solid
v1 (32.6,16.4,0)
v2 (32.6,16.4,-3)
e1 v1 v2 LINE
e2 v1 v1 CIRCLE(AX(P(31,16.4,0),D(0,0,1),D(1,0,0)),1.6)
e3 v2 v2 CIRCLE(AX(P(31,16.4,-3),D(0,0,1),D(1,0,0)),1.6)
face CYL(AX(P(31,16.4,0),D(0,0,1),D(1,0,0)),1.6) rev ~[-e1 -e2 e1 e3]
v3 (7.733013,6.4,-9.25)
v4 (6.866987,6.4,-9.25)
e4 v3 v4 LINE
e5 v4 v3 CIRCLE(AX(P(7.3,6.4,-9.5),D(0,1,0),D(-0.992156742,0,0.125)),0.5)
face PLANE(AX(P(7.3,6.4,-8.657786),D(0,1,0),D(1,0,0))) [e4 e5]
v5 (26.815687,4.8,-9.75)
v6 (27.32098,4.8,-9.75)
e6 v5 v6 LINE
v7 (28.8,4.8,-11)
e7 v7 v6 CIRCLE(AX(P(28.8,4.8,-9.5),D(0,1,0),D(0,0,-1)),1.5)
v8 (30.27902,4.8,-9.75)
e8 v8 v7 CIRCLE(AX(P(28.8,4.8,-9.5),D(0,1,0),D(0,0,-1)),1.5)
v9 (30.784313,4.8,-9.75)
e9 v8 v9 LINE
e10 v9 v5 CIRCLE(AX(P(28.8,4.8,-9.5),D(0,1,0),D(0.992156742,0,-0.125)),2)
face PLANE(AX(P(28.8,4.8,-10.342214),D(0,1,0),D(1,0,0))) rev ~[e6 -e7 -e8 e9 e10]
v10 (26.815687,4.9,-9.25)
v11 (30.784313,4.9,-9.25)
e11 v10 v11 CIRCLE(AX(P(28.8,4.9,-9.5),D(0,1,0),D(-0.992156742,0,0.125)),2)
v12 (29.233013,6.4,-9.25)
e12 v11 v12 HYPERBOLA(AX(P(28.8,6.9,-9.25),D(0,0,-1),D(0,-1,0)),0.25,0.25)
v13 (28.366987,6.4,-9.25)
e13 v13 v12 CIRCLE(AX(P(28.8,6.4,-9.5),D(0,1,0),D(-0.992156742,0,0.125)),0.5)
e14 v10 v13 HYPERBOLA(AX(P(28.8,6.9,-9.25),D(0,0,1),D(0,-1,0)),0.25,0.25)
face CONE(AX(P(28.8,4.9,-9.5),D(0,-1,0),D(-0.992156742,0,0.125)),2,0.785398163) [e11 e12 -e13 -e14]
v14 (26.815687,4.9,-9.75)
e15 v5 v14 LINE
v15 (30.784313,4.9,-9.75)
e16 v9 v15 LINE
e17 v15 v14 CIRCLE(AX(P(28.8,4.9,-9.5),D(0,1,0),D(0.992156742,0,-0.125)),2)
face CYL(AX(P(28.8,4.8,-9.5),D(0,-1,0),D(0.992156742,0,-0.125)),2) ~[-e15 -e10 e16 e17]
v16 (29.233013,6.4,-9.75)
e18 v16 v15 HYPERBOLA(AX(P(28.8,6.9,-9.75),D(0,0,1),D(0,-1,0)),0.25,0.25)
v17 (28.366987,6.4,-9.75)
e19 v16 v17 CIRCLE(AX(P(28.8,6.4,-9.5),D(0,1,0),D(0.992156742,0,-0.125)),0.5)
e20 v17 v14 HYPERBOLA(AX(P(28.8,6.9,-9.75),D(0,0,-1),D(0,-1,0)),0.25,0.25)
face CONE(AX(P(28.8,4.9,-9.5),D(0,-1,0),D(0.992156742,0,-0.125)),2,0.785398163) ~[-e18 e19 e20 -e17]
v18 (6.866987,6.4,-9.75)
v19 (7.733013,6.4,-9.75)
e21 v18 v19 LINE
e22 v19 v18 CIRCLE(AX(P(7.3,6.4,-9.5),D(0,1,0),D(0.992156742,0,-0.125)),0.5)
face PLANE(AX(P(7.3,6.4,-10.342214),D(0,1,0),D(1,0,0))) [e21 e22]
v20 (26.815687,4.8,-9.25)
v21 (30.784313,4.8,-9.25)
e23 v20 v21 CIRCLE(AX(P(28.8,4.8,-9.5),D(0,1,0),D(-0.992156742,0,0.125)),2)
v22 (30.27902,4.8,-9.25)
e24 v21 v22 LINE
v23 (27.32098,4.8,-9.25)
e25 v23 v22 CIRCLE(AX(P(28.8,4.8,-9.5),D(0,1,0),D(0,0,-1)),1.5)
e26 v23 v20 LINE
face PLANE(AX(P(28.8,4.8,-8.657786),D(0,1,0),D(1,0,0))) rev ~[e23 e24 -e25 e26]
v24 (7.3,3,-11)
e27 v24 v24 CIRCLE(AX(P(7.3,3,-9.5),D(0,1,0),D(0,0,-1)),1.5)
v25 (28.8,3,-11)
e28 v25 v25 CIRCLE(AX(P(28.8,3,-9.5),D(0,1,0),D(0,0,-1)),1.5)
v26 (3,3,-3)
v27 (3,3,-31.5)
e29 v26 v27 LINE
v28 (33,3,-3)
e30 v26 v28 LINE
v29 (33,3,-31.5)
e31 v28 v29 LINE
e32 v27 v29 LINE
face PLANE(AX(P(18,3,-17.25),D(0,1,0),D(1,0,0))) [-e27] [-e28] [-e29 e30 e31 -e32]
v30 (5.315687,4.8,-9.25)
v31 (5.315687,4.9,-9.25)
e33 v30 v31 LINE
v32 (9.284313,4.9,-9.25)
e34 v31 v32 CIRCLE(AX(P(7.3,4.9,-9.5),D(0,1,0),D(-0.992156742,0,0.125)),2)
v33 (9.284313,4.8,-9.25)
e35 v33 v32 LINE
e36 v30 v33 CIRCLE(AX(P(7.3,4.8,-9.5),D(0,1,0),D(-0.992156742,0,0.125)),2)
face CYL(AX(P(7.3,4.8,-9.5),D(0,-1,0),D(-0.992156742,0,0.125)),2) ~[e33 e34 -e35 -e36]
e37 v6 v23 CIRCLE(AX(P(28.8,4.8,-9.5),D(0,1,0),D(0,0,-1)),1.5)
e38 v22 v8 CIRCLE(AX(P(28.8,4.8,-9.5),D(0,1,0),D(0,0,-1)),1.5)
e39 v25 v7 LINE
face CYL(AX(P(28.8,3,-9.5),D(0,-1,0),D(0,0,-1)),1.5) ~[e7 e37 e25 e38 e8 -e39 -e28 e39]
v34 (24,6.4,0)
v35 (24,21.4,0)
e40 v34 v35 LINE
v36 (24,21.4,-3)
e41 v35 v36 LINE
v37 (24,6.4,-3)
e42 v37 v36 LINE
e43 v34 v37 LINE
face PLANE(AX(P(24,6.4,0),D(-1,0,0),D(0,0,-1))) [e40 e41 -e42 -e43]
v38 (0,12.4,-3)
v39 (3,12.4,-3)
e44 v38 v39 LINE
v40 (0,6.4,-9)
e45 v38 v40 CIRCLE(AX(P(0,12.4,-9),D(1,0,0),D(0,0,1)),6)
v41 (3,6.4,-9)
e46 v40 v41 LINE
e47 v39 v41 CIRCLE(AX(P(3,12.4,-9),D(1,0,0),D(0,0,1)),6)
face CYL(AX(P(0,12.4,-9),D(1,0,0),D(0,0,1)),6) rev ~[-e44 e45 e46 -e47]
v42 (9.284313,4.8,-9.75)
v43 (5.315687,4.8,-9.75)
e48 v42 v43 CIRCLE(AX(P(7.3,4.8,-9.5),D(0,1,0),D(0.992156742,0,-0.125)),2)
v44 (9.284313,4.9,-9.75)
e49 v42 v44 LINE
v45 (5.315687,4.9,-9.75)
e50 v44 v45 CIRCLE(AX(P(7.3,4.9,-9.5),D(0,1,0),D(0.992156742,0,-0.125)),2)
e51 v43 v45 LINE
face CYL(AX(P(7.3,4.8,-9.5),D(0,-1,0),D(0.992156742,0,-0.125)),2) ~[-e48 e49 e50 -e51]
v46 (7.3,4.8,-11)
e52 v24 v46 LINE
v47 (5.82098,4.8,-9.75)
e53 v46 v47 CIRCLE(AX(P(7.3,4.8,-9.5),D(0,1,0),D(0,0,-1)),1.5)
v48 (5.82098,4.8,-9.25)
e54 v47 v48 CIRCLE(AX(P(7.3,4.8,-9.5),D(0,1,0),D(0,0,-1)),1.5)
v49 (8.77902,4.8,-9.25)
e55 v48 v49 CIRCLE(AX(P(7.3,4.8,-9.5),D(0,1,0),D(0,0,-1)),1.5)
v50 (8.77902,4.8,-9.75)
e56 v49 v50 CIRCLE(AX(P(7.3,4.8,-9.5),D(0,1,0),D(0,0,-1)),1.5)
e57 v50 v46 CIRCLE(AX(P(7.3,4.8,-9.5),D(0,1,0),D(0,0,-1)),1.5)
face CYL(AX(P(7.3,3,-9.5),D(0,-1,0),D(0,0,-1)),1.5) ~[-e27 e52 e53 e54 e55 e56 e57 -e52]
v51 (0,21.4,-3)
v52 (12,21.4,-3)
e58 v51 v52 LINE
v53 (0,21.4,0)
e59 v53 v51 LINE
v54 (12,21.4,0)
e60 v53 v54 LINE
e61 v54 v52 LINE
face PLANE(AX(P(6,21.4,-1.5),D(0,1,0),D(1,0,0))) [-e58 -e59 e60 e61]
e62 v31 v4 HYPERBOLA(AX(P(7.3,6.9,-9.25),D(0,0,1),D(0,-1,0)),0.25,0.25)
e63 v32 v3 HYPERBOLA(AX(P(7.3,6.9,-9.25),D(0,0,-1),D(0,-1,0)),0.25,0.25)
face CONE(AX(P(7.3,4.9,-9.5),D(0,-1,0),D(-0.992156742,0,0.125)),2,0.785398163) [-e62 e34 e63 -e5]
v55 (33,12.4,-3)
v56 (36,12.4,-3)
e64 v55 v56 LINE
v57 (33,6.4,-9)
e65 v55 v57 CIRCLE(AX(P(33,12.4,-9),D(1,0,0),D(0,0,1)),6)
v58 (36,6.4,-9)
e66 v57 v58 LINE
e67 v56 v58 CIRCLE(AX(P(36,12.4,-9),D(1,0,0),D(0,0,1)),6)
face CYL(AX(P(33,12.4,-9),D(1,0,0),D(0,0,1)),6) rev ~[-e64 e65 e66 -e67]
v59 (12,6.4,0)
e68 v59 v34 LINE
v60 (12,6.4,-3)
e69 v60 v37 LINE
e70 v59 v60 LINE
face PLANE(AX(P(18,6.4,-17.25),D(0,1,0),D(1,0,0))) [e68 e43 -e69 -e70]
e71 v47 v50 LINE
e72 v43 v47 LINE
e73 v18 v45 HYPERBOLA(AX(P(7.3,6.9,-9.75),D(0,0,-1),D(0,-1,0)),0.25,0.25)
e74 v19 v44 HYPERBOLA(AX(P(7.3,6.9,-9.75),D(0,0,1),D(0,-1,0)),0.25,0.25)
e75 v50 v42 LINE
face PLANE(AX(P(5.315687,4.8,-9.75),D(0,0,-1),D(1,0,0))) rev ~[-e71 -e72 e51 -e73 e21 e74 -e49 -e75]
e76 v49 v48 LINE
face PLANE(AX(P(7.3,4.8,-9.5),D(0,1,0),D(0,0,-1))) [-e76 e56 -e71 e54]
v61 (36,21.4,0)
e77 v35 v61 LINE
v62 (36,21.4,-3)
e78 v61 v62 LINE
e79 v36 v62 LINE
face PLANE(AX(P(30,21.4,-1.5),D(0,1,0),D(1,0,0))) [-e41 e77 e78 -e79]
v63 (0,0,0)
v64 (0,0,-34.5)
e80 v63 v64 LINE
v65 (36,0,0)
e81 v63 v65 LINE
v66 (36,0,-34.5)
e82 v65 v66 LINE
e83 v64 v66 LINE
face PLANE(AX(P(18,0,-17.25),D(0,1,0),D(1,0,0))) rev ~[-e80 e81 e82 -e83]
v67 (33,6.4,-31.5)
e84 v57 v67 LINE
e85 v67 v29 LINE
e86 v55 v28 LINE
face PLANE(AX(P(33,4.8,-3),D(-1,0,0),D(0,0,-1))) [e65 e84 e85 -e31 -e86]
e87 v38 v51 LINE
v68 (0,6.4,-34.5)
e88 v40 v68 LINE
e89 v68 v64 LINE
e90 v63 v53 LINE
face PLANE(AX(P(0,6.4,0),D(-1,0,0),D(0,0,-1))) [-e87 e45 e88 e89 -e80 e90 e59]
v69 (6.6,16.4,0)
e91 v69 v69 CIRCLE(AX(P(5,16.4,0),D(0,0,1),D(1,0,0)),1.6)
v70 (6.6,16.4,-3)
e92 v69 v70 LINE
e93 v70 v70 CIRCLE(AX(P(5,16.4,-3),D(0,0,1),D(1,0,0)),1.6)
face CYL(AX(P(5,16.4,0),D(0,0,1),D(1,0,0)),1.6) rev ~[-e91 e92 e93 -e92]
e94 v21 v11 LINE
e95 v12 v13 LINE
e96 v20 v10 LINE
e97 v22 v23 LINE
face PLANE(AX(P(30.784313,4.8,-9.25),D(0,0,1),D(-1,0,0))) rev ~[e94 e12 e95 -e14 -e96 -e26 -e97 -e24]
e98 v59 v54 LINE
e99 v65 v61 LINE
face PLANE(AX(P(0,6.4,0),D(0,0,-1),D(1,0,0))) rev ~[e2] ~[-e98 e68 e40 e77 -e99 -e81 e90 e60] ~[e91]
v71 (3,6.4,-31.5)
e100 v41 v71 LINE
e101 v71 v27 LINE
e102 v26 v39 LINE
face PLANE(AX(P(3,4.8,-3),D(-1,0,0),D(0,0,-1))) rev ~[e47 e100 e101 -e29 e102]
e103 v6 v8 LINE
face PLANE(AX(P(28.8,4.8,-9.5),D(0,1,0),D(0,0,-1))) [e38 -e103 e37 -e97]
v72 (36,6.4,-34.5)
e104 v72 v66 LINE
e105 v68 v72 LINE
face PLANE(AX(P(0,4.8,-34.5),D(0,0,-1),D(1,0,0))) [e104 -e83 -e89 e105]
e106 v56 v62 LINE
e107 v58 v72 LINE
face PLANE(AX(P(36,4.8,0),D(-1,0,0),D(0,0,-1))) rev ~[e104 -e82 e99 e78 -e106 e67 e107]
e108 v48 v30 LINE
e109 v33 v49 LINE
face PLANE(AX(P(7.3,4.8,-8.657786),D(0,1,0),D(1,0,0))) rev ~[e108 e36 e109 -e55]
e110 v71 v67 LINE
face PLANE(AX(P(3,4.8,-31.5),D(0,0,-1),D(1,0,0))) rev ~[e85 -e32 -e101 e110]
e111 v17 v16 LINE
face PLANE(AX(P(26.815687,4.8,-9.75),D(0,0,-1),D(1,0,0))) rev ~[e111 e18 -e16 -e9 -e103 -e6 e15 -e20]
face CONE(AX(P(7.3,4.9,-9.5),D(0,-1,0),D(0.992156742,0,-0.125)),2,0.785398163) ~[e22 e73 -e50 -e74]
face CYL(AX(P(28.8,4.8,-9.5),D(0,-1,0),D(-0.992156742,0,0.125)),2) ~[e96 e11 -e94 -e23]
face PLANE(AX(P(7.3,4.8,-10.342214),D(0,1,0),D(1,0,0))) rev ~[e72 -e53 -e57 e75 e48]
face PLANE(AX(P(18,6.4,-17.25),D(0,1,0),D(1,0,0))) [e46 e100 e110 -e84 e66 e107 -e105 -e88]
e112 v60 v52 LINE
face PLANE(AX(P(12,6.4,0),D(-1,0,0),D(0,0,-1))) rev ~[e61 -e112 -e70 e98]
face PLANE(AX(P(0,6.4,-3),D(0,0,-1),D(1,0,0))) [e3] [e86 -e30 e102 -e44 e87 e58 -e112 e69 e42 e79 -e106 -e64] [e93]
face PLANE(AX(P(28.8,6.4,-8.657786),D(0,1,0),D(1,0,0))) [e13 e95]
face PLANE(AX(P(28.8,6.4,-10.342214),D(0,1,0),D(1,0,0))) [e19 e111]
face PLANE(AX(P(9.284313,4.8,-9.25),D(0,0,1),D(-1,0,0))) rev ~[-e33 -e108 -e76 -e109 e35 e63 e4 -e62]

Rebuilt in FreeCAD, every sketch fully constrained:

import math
import FreeCAD as App
import Part
import Sketcher

V = App.Vector
Q = App.Units.Quantity


def edges_at(feature, points):
    """Names of the edges that pass closest to the given points."""
    edges = feature.Shape.Edges
    near = lambda p: min(range(len(edges)), key=lambda i: edges[i].distToShape(Part.Vertex(*p))[0])
    return sorted({f"Edge{near(p) + 1}" for p in points})

doc = App.newDocument("Part")
body = doc.addObject("PartDesign::Body", "Body")

# Sketch on XZ plane
sketch1 = body.newObject("Sketcher::SketchObject", "Sketch")
sketch1.AttachmentSupport = (doc.getObject("XZ_Plane"), [""])
sketch1.MapMode = "FlatFace"
sketch1.addGeometry([
    Part.LineSegment(V(0, -34, 0), V(0, 0, 0)),
    Part.LineSegment(V(0, 0, 0), V(36, 0, 0)),
    Part.LineSegment(V(36, 0, 0), V(36, -34, 0)),
    Part.LineSegment(V(36, -34, 0), V(0, -34, 0)),
], False)
sketch1.addConstraint([
    Sketcher.Constraint("Coincident", 0, 2, 1, 1),
    Sketcher.Constraint("Coincident", 1, 2, 2, 1),
    Sketcher.Constraint("Coincident", 2, 2, 3, 1),
    Sketcher.Constraint("Coincident", 3, 2, 0, 1),
    Sketcher.Constraint("Vertical", 0),
    Sketcher.Constraint("Horizontal", 1),
    Sketcher.Constraint("Vertical", 2),
    Sketcher.Constraint("Horizontal", 3),
    Sketcher.Constraint("Coincident", 0, 2, -1, 1),
    Sketcher.Constraint("DistanceX", 1, 1, 1, 2, Q("36 mm")),
    Sketcher.Constraint("DistanceY", 0, 1, 0, 2, Q("34.5 mm")),
])
pad1 = body.newObject("PartDesign::Pad", "Pad")
pad1.Profile = sketch1
pad1.Length = 3
pad1.Reversed = True

# Sketch on XZ plane
sketch2 = body.newObject("Sketcher::SketchObject", "Sketch001")
sketch2.AttachmentSupport = (doc.getObject("XZ_Plane"), [""])
sketch2.MapMode = "FlatFace"
sketch2.AttachmentOffset = App.Placement(V(0, 0, -3), App.Rotation())
sketch2.addGeometry([
    Part.LineSegment(V(0, -34.5, 0), V(0, 0, 0)),  # 0
    Part.LineSegment(V(0, 0, 0), V(36, 0, 0)),  # 1
    Part.LineSegment(V(36, 0, 0), V(36, -34.5, 0)),  # 2
    Part.LineSegment(V(36, -34.5, 0), V(0, -34.5, 0)),  # 3
    Part.LineSegment(V(33, -3, 0), V(3, -3, 0)),  # 4
    Part.LineSegment(V(3, -3, 0), V(3, -31.5, 0)),  # 5
    Part.LineSegment(V(3, -31.5, 0), V(33, -31.5, 0)),  # 6
    Part.LineSegment(V(33, -31.5, 0), V(33, -3, 0)),  # 7
    Part.Circle(V(7.3, -9.5, 0), V(0, 0, 1), 1.5),  # 8
    Part.Circle(V(28.8, -9.5, 0), V(0, 0, 1), 1.5),  # 9
], False)
sketch2.addConstraint([
    Sketcher.Constraint("Coincident", 0, 2, 1, 1),
    Sketcher.Constraint("Coincident", 1, 2, 2, 1),
    Sketcher.Constraint("Coincident", 2, 2, 3, 1),
    Sketcher.Constraint("Coincident", 3, 2, 0, 1),
    Sketcher.Constraint("Coincident", 4, 2, 5, 1),
    Sketcher.Constraint("Coincident", 5, 2, 6, 1),
    Sketcher.Constraint("Coincident", 6, 2, 7, 1),
    Sketcher.Constraint("Coincident", 7, 2, 4, 1),
    Sketcher.Constraint("Vertical", 0),
    Sketcher.Constraint("Horizontal", 1),
    Sketcher.Constraint("Vertical", 2),
    Sketcher.Constraint("Horizontal", 3),
    Sketcher.Constraint("Horizontal", 4),
    Sketcher.Constraint("Vertical", 5),
    Sketcher.Constraint("Horizontal", 6),
    Sketcher.Constraint("Vertical", 7),
    Sketcher.Constraint("Coincident", 0, 2, -1, 1),
    Sketcher.Constraint("Equal", 8, 9),
    Sketcher.Constraint("Horizontal", 8, 3, 9, 3),
    Sketcher.Constraint("Diameter", 8, Q("3 mm")),
    Sketcher.Constraint("DistanceX", 1, 1, 1, 2, Q("36 mm")),
    Sketcher.Constraint("DistanceX", 4, 2, 4, 1, Q("30 mm")),
    Sketcher.Constraint("DistanceY", 0, 1, 0, 2, Q("34.5 mm")),
    Sketcher.Constraint("DistanceY", 5, 2, 5, 1, Q("28.5 mm")),
    Sketcher.Constraint("DistanceX", -1, 1, 4, 2, Q("3 mm")),
    Sketcher.Constraint("DistanceY", 4, 2, -1, 1, Q("3 mm")),
    Sketcher.Constraint("DistanceY", 2, 2, 9, 3, Q("25 mm")),
    Sketcher.Constraint("DistanceX", -1, 1, 8, 3, Q("7.3 mm")),
    Sketcher.Constraint("DistanceX", -1, 1, 9, 3, Q("28.8 mm")),
])
pad2 = body.newObject("PartDesign::Pad", "Pad001")
pad2.Profile = sketch2
pad2.Length = 1.8
pad2.Reversed = True

# Sketch on XZ plane
sketch3 = body.newObject("Sketcher::SketchObject", "Sketch002")
sketch3.AttachmentSupport = (doc.getObject("XZ_Plane"), [""])
sketch3.MapMode = "FlatFace"
sketch3.AttachmentOffset = App.Placement(V(0, 0, -4.8), App.Rotation())
sketch3.addGeometry([
    Part.LineSegment(V(0, -34.5, 0), V(0, 0, 0)),  # 0
    Part.LineSegment(V(0, 0, 0), V(36, 0, 0)),  # 1
    Part.LineSegment(V(36, 0, 0), V(36, -34.5, 0)),  # 2
    Part.LineSegment(V(36, -34.5, 0), V(0, -34.5, 0)),  # 3
    Part.LineSegment(V(33, -3, 0), V(3, -3, 0)),  # 4
    Part.LineSegment(V(3, -3, 0), V(3, -31.5, 0)),  # 5
    Part.LineSegment(V(3, -31.5, 0), V(33, -31.5, 0)),  # 6
    Part.LineSegment(V(33, -31.5, 0), V(33, -3, 0)),  # 7
    Part.ArcOfCircle(Part.Circle(V(28.8, -9.5, 0), V(0, 0, 1), 2), math.radians(-173), math.radians(-7)),  # 8
    Part.LineSegment(V(26.8, -9.8, 0), V(30.8, -9.8, 0)),  # 9
    Part.ArcOfCircle(Part.Circle(V(28.8, -9.5, 0), V(0, 0, 1), 2), math.radians(7), math.radians(173)),  # 10
    Part.LineSegment(V(30.8, -9.2, 0), V(26.8, -9.2, 0)),  # 11
    Part.ArcOfCircle(Part.Circle(V(7.3, -9.5, 0), V(0, 0, 1), 2), math.radians(-173), math.radians(-7)),  # 12
    Part.LineSegment(V(5.3, -9.8, 0), V(9.3, -9.8, 0)),  # 13
    Part.ArcOfCircle(Part.Circle(V(7.3, -9.5, 0), V(0, 0, 1), 2), math.radians(7), math.radians(173)),  # 14
    Part.LineSegment(V(9.3, -9.2, 0), V(5.3, -9.2, 0)),  # 15
], False)
sketch3.addConstraint([
    Sketcher.Constraint("Coincident", 0, 2, 1, 1),
    Sketcher.Constraint("Coincident", 1, 2, 2, 1),
    Sketcher.Constraint("Coincident", 2, 2, 3, 1),
    Sketcher.Constraint("Coincident", 3, 2, 0, 1),
    Sketcher.Constraint("Coincident", 4, 2, 5, 1),
    Sketcher.Constraint("Coincident", 5, 2, 6, 1),
    Sketcher.Constraint("Coincident", 6, 2, 7, 1),
    Sketcher.Constraint("Coincident", 7, 2, 4, 1),
    Sketcher.Constraint("Coincident", 8, 1, 9, 1),
    Sketcher.Constraint("Coincident", 9, 2, 8, 2),
    Sketcher.Constraint("Coincident", 10, 1, 11, 1),
    Sketcher.Constraint("Coincident", 11, 2, 10, 2),
    Sketcher.Constraint("Coincident", 12, 1, 13, 1),
    Sketcher.Constraint("Coincident", 13, 2, 12, 2),
    Sketcher.Constraint("Coincident", 14, 1, 15, 1),
    Sketcher.Constraint("Coincident", 15, 2, 14, 2),
    Sketcher.Constraint("Vertical", 0),
    Sketcher.Constraint("Horizontal", 1),
    Sketcher.Constraint("Vertical", 2),
    Sketcher.Constraint("Horizontal", 3),
    Sketcher.Constraint("Horizontal", 4),
    Sketcher.Constraint("Vertical", 5),
    Sketcher.Constraint("Horizontal", 6),
    Sketcher.Constraint("Vertical", 7),
    Sketcher.Constraint("Horizontal", 9),
    Sketcher.Constraint("Horizontal", 11),
    Sketcher.Constraint("Horizontal", 13),
    Sketcher.Constraint("Horizontal", 15),
    Sketcher.Constraint("Coincident", 0, 2, -1, 1),
    Sketcher.Constraint("Coincident", 10, 3, 8, 3),
    Sketcher.Constraint("Coincident", 14, 3, 12, 3),
    Sketcher.Constraint("Equal", 8, 10),
    Sketcher.Constraint("Equal", 10, 12),
    Sketcher.Constraint("Equal", 12, 14),
    Sketcher.Constraint("Horizontal", 10, 3, 12, 3),
    Sketcher.Constraint("Horizontal", 9, 2, 12, 1),
    Sketcher.Constraint("Horizontal", 11, 2, 14, 1),
    Sketcher.Constraint("Vertical", 9, 2, 10, 1),
    Sketcher.Constraint("Radius", 8, Q("2 mm")),
    Sketcher.Constraint("DistanceX", 1, 1, 1, 2, Q("36 mm")),
    Sketcher.Constraint("DistanceX", 4, 2, 4, 1, Q("30 mm")),
    Sketcher.Constraint("DistanceY", 0, 1, 0, 2, Q("34.5 mm")),
    Sketcher.Constraint("DistanceY", 5, 2, 5, 1, Q("28.5 mm")),
    Sketcher.Constraint("DistanceX", -1, 1, 4, 2, Q("3 mm")),
    Sketcher.Constraint("DistanceY", 4, 2, -1, 1, Q("3 mm")),
    Sketcher.Constraint("DistanceY", 2, 2, 8, 3, Q("25 mm")),
    Sketcher.Constraint("DistanceX", -1, 1, 8, 3, Q("28.8 mm")),
    Sketcher.Constraint("DistanceX", -1, 1, 12, 3, Q("7.3 mm")),
    Sketcher.Constraint("DistanceY", 9, 2, 10, 1, Q("0.5 mm")),
])
pad3 = body.newObject("PartDesign::Pad", "Pad002")
pad3.Profile = sketch3
pad3.Length = 1.6
pad3.Reversed = True
doc.recompute()

chamfer = body.newObject("PartDesign::Chamfer", "Chamfer")
chamfer.Base = (pad3, edges_at(pad3, [
    (7.3, 6.4, -11.5),
    (7.3, 6.4, -7.5),
    (28.8, 6.4, -11.5),
    (28.8, 6.4, -7.5),
]))
chamfer.Size = 1.5

# Sketch on XZ plane
sketch4 = body.newObject("Sketcher::SketchObject", "Sketch003")
sketch4.AttachmentSupport = (doc.getObject("XZ_Plane"), [""])
sketch4.MapMode = "FlatFace"
sketch4.AttachmentOffset = App.Placement(V(0, 0, -6.4), App.Rotation())
sketch4.addGeometry([
    Part.LineSegment(V(0, -3, 0), V(0, 0, 0)),  # 0
    Part.LineSegment(V(0, 0, 0), V(12, 0, 0)),  # 1
    Part.LineSegment(V(12, 0, 0), V(12, -3, 0)),  # 2
    Part.LineSegment(V(12, -3, 0), V(0, -3, 0)),  # 3
    Part.LineSegment(V(24, -3, 0), V(24, 0, 0)),  # 4
    Part.LineSegment(V(24, 0, 0), V(36, 0, 0)),  # 5
    Part.LineSegment(V(36, 0, 0), V(36, -3, 0)),  # 6
    Part.LineSegment(V(36, -3, 0), V(24, -3, 0)),  # 7
], False)
sketch4.addConstraint([
    Sketcher.Constraint("Coincident", 0, 2, 1, 1),
    Sketcher.Constraint("Coincident", 1, 2, 2, 1),
    Sketcher.Constraint("Coincident", 2, 2, 3, 1),
    Sketcher.Constraint("Coincident", 3, 2, 0, 1),
    Sketcher.Constraint("Coincident", 4, 2, 5, 1),
    Sketcher.Constraint("Coincident", 5, 2, 6, 1),
    Sketcher.Constraint("Coincident", 6, 2, 7, 1),
    Sketcher.Constraint("Coincident", 7, 2, 4, 1),
    Sketcher.Constraint("Vertical", 0),
    Sketcher.Constraint("Horizontal", 1),
    Sketcher.Constraint("Vertical", 2),
    Sketcher.Constraint("Horizontal", 3),
    Sketcher.Constraint("Vertical", 4),
    Sketcher.Constraint("Horizontal", 5),
    Sketcher.Constraint("Vertical", 6),
    Sketcher.Constraint("Horizontal", 7),
    Sketcher.Constraint("Coincident", 0, 2, -1, 1),
    Sketcher.Constraint("PointOnObject", 4, 2, -1),
    Sketcher.Constraint("Horizontal", 3, 2, 6, 2),
    Sketcher.Constraint("Equal", 3, 5),
    Sketcher.Constraint("DistanceX", 1, 1, 1, 2, Q("12 mm")),
    Sketcher.Constraint("DistanceY", 0, 1, 0, 2, Q("3 mm")),
    Sketcher.Constraint("DistanceX", -1, 1, 4, 2, Q("24 mm")),
])
pad4 = body.newObject("PartDesign::Pad", "Pad003")
pad4.Profile = sketch4
pad4.Length = 15
pad4.Reversed = True

# Sketch on XY plane
sketch5 = body.newObject("Sketcher::SketchObject", "Sketch004")
sketch5.AttachmentSupport = (doc.getObject("XY_Plane"), [""])
sketch5.MapMode = "FlatFace"
sketch5.addGeometry([
    Part.Circle(V(5, 16.4, 0), V(0, 0, 1), 1.6),
    Part.Circle(V(31, 16.4, 0), V(0, 0, 1), 1.6),
], False)
sketch5.addConstraint([
    Sketcher.Constraint("Equal", 0, 1),
    Sketcher.Constraint("Horizontal", 0, 3, 1, 3),
    Sketcher.Constraint("Diameter", 0, Q("3.2 mm")),
    Sketcher.Constraint("DistanceX", -1, 1, 0, 3, Q("5 mm")),
    Sketcher.Constraint("DistanceX", -1, 1, 1, 3, Q("31 mm")),
    Sketcher.Constraint("DistanceY", -1, 1, 0, 3, Q("16.4 mm")),
])
pocket1 = body.newObject("PartDesign::Pocket", "Pocket")
pocket1.Profile = sketch5
pocket1.Type = "ThroughAll"
doc.recompute()

fillet = body.newObject("PartDesign::Fillet", "Fillet")
fillet.Base = (pocket1, edges_at(pocket1, [(1.5, 6.4, -3), (34.5, 6.4, -3)]))
fillet.Radius = 6

doc.recompute()
